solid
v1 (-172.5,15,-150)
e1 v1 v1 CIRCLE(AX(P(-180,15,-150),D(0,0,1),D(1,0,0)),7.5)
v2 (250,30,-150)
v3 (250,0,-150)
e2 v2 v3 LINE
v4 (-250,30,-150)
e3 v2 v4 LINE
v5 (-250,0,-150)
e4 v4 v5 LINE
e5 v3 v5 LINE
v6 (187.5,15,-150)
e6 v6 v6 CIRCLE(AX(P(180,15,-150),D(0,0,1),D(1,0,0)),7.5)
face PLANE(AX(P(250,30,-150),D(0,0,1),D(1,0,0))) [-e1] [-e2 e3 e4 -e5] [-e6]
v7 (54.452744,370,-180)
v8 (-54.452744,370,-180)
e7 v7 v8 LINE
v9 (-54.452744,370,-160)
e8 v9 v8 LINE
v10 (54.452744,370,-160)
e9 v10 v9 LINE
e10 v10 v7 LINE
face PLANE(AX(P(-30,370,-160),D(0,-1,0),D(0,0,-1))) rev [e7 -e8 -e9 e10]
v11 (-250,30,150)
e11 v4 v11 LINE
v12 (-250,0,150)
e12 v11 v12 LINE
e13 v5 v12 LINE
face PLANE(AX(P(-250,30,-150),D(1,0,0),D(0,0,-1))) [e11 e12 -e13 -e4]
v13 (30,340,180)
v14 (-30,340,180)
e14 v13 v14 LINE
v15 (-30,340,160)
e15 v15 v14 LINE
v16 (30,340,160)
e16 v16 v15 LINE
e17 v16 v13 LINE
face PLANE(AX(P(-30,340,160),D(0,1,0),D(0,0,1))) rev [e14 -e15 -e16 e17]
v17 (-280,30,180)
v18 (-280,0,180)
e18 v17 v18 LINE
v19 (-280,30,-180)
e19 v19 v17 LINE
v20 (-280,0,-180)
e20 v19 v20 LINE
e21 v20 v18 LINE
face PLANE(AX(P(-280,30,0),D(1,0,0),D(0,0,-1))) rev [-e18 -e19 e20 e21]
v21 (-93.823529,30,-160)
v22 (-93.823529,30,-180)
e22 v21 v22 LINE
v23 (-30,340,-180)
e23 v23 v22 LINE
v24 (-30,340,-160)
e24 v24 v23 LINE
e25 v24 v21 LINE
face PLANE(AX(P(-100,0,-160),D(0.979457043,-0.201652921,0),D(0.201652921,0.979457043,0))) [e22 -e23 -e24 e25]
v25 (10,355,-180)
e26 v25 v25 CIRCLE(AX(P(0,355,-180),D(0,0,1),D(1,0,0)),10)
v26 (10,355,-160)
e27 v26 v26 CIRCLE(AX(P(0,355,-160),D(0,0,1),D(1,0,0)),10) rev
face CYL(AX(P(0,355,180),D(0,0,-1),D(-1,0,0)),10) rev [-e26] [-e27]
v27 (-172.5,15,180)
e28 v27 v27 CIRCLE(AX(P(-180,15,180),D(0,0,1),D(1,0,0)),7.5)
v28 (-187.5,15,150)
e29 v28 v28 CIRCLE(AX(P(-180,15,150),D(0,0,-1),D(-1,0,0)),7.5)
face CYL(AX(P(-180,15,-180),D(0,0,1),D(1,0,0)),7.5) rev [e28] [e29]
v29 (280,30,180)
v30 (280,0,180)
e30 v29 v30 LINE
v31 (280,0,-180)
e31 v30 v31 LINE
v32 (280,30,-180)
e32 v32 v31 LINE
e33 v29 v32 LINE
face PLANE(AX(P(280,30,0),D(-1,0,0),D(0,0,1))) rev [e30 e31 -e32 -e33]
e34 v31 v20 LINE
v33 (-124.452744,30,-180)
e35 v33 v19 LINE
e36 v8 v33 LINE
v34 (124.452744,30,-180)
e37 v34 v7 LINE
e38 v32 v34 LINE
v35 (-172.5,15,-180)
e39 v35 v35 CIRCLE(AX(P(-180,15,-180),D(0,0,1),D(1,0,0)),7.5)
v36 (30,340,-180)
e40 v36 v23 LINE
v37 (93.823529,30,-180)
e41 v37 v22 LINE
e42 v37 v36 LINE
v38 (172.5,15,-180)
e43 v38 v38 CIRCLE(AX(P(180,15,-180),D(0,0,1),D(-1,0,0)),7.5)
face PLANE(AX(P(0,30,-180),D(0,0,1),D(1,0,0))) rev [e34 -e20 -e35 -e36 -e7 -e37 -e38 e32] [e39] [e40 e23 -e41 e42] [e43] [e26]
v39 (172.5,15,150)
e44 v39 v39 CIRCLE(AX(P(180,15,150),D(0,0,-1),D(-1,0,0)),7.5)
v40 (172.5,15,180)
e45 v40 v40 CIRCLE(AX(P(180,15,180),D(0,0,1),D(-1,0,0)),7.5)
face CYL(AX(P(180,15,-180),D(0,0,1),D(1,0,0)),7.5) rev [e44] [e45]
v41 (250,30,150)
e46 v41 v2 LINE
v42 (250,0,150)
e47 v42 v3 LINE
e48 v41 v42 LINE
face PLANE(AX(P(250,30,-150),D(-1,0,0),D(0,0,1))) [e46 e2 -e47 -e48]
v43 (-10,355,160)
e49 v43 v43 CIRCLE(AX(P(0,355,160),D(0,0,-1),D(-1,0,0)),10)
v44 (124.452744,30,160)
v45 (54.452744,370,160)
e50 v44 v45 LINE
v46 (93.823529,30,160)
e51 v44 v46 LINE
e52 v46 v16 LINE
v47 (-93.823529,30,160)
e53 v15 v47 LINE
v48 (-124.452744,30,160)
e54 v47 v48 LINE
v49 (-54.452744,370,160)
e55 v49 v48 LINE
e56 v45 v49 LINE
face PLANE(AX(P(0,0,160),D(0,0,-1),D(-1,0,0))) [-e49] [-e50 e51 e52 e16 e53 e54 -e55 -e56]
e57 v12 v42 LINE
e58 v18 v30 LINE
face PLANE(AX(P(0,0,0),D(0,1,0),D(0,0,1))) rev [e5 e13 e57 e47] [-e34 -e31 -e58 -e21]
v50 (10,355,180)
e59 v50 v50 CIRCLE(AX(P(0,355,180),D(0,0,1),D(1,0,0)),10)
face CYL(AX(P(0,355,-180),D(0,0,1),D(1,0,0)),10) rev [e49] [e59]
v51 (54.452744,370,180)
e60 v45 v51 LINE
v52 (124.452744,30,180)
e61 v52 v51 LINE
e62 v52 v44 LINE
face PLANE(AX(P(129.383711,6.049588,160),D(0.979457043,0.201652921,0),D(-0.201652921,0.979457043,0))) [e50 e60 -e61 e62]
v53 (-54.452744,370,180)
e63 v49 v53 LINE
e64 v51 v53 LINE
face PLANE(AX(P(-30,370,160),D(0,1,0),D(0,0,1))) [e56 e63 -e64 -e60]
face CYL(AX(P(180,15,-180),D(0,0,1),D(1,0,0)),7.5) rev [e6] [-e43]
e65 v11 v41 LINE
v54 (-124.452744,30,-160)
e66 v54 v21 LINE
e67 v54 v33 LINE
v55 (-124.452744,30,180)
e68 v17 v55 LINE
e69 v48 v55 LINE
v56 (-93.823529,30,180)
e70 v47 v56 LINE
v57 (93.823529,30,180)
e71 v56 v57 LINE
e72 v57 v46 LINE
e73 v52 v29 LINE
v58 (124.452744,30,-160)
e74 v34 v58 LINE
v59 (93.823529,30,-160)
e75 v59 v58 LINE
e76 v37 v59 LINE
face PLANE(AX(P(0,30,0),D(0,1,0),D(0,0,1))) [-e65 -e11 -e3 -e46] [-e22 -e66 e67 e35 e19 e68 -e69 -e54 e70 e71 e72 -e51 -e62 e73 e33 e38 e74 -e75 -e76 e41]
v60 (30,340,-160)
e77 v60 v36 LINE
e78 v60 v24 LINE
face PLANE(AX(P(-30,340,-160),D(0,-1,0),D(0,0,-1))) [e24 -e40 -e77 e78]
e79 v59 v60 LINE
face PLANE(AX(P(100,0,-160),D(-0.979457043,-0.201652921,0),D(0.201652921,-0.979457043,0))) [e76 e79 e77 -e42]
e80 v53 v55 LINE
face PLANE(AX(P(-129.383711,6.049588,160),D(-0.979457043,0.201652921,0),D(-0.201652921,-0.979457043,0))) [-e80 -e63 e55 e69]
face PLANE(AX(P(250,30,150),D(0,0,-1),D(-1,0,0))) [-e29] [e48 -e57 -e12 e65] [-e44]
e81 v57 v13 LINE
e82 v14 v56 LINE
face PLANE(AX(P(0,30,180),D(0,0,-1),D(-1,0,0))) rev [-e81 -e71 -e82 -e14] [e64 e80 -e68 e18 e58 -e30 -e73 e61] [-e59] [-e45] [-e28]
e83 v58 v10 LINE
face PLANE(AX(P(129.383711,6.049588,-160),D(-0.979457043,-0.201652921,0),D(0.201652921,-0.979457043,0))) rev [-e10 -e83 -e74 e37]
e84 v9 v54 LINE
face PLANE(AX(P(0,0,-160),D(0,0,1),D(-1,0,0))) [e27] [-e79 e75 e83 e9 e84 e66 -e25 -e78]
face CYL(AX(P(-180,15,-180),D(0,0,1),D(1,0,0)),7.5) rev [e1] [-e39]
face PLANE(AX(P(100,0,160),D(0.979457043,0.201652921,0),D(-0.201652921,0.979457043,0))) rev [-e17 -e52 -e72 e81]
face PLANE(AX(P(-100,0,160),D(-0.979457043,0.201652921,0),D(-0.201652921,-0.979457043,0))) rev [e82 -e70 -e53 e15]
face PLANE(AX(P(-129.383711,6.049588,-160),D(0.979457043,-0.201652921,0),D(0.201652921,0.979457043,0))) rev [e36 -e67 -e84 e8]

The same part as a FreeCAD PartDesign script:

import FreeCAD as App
import Part
import Sketcher
Q = App.Units.Quantity

doc = App.newDocument("Part")
body = doc.addObject("PartDesign::Body", "Body")

# Sketch on XZ plane
sketch1 = body.newObject("Sketcher::SketchObject", "Sketch")
sketch1.AttachmentSupport = (doc.getObject("XZ_Plane"), [""])
sketch1.MapMode = "FlatFace"
sketch1.addGeometry([
    Part.LineSegment(App.Vector(-280, -180, 0), App.Vector(-280, 180, 0)),  # 0
    Part.LineSegment(App.Vector(-280, 180, 0), App.Vector(280, 180, 0)),  # 1
    Part.LineSegment(App.Vector(280, 180, 0), App.Vector(280, -180, 0)),  # 2
    Part.LineSegment(App.Vector(280, -180, 0), App.Vector(-280, -180, 0)),  # 3
    Part.LineSegment(App.Vector(250, 150, 0), App.Vector(-250, 150, 0)),  # 4
    Part.LineSegment(App.Vector(-250, 150, 0), App.Vector(-250, -150, 0)),  # 5
    Part.LineSegment(App.Vector(-250, -150, 0), App.Vector(250, -150, 0)),  # 6
    Part.LineSegment(App.Vector(250, -150, 0), App.Vector(250, 150, 0)),  # 7
], False)
sketch1.addConstraint([
    Sketcher.Constraint("Coincident", 0, 2, 1, 1),
    Sketcher.Constraint("Coincident", 1, 2, 2, 1),
    Sketcher.Constraint("Coincident", 2, 2, 3, 1),
    Sketcher.Constraint("Coincident", 3, 2, 0, 1),
    Sketcher.Constraint("Coincident", 4, 2, 5, 1),
    Sketcher.Constraint("Coincident", 5, 2, 6, 1),
    Sketcher.Constraint("Coincident", 6, 2, 7, 1),
    Sketcher.Constraint("Coincident", 7, 2, 4, 1),
    Sketcher.Constraint("Vertical", 0),
    Sketcher.Constraint("Horizontal", 1),
    Sketcher.Constraint("Vertical", 2),
    Sketcher.Constraint("Horizontal", 3),
    Sketcher.Constraint("Horizontal", 4),
    Sketcher.Constraint("Vertical", 5),
    Sketcher.Constraint("Horizontal", 6),
    Sketcher.Constraint("Vertical", 7),
    Sketcher.Constraint("Symmetric", 0, 2, 2, 2, -1, 1),
    Sketcher.Constraint("Symmetric", 4, 2, 6, 2, -1, 1),
    Sketcher.Constraint("DistanceX", 1, 1, 1, 2, Q("560 mm")),
    Sketcher.Constraint("DistanceX", 4, 2, 4, 1, Q("500 mm")),
    Sketcher.Constraint("DistanceY", 0, 1, 0, 2, Q("360 mm")),
    Sketcher.Constraint("DistanceY", 5, 2, 5, 1, Q("300 mm")),
])
pad1 = body.newObject("PartDesign::Pad", "Pad")
pad1.Profile = sketch1
pad1.Length = 30
pad1.Reversed = True

# Sketch on XY plane
sketch2 = body.newObject("Sketcher::SketchObject", "Sketch001")
sketch2.AttachmentSupport = (doc.getObject("XY_Plane"), [""])
sketch2.MapMode = "FlatFace"
sketch2.AttachmentOffset = App.Placement(App.Vector(0, 0, 180), App.Rotation())
sketch2.addGeometry([
    Part.Circle(App.Vector(-180, 15, 0), App.Vector(0, 0, 1), 8),
    Part.Circle(App.Vector(180, 15, 0), App.Vector(0, 0, 1), 8),
], False)
sketch2.addConstraint([
    Sketcher.Constraint("Equal", 0, 1),
    Sketcher.Constraint("Symmetric", 0, 3, 1, 3, -2),
    Sketcher.Constraint("Diameter", 0, Q("15 mm")),
    Sketcher.Constraint("DistanceX", 0, 3, -1, 1, Q("180 mm")),
    Sketcher.Constraint("DistanceY", -1, 1, 0, 3, Q("15 mm")),
])
pocket1 = body.newObject("PartDesign::Pocket", "Pocket")
pocket1.Profile = sketch2
pocket1.Type = "ThroughAll"

# Sketch on XY plane
sketch3 = body.newObject("Sketcher::SketchObject", "Sketch002")
sketch3.AttachmentSupport = (doc.getObject("XY_Plane"), [""])
sketch3.MapMode = "FlatFace"
sketch3.AttachmentOffset = App.Placement(App.Vector(0, 0, 180), App.Rotation())
sketch3.addGeometry([
    Part.LineSegment(App.Vector(-100, 0, 0), App.Vector(-30, 340, 0)),  # 0
    Part.LineSegment(App.Vector(-30, 340, 0), App.Vector(30, 340, 0)),  # 1
    Part.LineSegment(App.Vector(30, 340, 0), App.Vector(100, 0, 0)),  # 2
    Part.LineSegment(App.Vector(100, 0, 0), App.Vector(129, 6, 0)),  # 3
    Part.LineSegment(App.Vector(129, 6, 0), App.Vector(54, 370, 0)),  # 4
    Part.LineSegment(App.Vector(54, 370, 0), App.Vector(-54, 370, 0)),  # 5
    Part.LineSegment(App.Vector(-54, 370, 0), App.Vector(-129, 6, 0)),  # 6
    Part.LineSegment(App.Vector(-129, 6, 0), App.Vector(-100, 0, 0)),  # 7
], False)
sketch3.addConstraint([
    Sketcher.Constraint("Coincident", 0, 2, 1, 1),
    Sketcher.Constraint("Coincident", 1, 2, 2, 1),
    Sketcher.Constraint("Coincident", 2, 2, 3, 1),
    Sketcher.Constraint("Coincident", 3, 2, 4, 1),
    Sketcher.Constraint("Coincident", 4, 2, 5, 1),
    Sketcher.Constraint("Coincident", 5, 2, 6, 1),
    Sketcher.Constraint("Coincident", 6, 2, 7, 1),
    Sketcher.Constraint("Coincident", 7, 2, 0, 1),
    Sketcher.Constraint("Horizontal", 1),
    Sketcher.Constraint("Horizontal", 5),
    Sketcher.Constraint("Symmetric", 2, 2, 7, 2, -1, 1),
    Sketcher.Constraint("Symmetric", 3, 2, 6, 2, -2),
    Sketcher.Constraint("PointOnObject", 2, 2, -1),
    Sketcher.Constraint("Perpendicular", 2, 3),
    Sketcher.Constraint("Perpendicular", 3, 4),
    Sketcher.Constraint("Parallel", 0, 6),
    Sketcher.Constraint("Perpendicular", 6, 7),
    Sketcher.Constraint("DistanceX", 1, 1, 1, 2, Q("60 mm")),
    Sketcher.Constraint("Distance", 3, Q("30 mm")),
    Sketcher.Constraint("DistanceY", -1, 1, 0, 2, Q("340 mm")),
    Sketcher.Constraint("DistanceX", -1, 1, 2, 2, Q("100 mm")),
    Sketcher.Constraint("DistanceY", -1, 1, 4, 2, Q("370 mm")),
])
pad2 = body.newObject("PartDesign::Pad", "Pad001")
pad2.Profile = sketch3
pad2.Length = 20
pad2.Reversed = True

# Sketch on XY plane
sketch4 = body.newObject("Sketcher::SketchObject", "Sketch003")
sketch4.AttachmentSupport = (doc.getObject("XY_Plane"), [""])
sketch4.MapMode = "FlatFace"
sketch4.AttachmentOffset = App.Placement(App.Vector(0, 0, 180), App.Rotation())
sketch4.addGeometry(Part.Circle(App.Vector(0, 355, 0), App.Vector(0, 0, 1), 10), False)
sketch4.addConstraint([
    Sketcher.Constraint("PointOnObject", 0, 3, -2),
    Sketcher.Constraint("Diameter", 0, Q("20 mm")),
    Sketcher.Constraint("DistanceY", -1, 1, 0, 3, Q("355 mm")),
])
pocket2 = body.newObject("PartDesign::Pocket", "Pocket001")
pocket2.Profile = sketch4
pocket2.Type = "ThroughAll"
doc.recompute()

mirrored = body.newObject("PartDesign::Mirrored", "Mirrored")
mirrored.Originals = [pad2, pocket2]
mirrored.MirrorPlane = (doc.getObject("XY_Plane"), [""])
body.Tip = mirrored

doc.recompute()
